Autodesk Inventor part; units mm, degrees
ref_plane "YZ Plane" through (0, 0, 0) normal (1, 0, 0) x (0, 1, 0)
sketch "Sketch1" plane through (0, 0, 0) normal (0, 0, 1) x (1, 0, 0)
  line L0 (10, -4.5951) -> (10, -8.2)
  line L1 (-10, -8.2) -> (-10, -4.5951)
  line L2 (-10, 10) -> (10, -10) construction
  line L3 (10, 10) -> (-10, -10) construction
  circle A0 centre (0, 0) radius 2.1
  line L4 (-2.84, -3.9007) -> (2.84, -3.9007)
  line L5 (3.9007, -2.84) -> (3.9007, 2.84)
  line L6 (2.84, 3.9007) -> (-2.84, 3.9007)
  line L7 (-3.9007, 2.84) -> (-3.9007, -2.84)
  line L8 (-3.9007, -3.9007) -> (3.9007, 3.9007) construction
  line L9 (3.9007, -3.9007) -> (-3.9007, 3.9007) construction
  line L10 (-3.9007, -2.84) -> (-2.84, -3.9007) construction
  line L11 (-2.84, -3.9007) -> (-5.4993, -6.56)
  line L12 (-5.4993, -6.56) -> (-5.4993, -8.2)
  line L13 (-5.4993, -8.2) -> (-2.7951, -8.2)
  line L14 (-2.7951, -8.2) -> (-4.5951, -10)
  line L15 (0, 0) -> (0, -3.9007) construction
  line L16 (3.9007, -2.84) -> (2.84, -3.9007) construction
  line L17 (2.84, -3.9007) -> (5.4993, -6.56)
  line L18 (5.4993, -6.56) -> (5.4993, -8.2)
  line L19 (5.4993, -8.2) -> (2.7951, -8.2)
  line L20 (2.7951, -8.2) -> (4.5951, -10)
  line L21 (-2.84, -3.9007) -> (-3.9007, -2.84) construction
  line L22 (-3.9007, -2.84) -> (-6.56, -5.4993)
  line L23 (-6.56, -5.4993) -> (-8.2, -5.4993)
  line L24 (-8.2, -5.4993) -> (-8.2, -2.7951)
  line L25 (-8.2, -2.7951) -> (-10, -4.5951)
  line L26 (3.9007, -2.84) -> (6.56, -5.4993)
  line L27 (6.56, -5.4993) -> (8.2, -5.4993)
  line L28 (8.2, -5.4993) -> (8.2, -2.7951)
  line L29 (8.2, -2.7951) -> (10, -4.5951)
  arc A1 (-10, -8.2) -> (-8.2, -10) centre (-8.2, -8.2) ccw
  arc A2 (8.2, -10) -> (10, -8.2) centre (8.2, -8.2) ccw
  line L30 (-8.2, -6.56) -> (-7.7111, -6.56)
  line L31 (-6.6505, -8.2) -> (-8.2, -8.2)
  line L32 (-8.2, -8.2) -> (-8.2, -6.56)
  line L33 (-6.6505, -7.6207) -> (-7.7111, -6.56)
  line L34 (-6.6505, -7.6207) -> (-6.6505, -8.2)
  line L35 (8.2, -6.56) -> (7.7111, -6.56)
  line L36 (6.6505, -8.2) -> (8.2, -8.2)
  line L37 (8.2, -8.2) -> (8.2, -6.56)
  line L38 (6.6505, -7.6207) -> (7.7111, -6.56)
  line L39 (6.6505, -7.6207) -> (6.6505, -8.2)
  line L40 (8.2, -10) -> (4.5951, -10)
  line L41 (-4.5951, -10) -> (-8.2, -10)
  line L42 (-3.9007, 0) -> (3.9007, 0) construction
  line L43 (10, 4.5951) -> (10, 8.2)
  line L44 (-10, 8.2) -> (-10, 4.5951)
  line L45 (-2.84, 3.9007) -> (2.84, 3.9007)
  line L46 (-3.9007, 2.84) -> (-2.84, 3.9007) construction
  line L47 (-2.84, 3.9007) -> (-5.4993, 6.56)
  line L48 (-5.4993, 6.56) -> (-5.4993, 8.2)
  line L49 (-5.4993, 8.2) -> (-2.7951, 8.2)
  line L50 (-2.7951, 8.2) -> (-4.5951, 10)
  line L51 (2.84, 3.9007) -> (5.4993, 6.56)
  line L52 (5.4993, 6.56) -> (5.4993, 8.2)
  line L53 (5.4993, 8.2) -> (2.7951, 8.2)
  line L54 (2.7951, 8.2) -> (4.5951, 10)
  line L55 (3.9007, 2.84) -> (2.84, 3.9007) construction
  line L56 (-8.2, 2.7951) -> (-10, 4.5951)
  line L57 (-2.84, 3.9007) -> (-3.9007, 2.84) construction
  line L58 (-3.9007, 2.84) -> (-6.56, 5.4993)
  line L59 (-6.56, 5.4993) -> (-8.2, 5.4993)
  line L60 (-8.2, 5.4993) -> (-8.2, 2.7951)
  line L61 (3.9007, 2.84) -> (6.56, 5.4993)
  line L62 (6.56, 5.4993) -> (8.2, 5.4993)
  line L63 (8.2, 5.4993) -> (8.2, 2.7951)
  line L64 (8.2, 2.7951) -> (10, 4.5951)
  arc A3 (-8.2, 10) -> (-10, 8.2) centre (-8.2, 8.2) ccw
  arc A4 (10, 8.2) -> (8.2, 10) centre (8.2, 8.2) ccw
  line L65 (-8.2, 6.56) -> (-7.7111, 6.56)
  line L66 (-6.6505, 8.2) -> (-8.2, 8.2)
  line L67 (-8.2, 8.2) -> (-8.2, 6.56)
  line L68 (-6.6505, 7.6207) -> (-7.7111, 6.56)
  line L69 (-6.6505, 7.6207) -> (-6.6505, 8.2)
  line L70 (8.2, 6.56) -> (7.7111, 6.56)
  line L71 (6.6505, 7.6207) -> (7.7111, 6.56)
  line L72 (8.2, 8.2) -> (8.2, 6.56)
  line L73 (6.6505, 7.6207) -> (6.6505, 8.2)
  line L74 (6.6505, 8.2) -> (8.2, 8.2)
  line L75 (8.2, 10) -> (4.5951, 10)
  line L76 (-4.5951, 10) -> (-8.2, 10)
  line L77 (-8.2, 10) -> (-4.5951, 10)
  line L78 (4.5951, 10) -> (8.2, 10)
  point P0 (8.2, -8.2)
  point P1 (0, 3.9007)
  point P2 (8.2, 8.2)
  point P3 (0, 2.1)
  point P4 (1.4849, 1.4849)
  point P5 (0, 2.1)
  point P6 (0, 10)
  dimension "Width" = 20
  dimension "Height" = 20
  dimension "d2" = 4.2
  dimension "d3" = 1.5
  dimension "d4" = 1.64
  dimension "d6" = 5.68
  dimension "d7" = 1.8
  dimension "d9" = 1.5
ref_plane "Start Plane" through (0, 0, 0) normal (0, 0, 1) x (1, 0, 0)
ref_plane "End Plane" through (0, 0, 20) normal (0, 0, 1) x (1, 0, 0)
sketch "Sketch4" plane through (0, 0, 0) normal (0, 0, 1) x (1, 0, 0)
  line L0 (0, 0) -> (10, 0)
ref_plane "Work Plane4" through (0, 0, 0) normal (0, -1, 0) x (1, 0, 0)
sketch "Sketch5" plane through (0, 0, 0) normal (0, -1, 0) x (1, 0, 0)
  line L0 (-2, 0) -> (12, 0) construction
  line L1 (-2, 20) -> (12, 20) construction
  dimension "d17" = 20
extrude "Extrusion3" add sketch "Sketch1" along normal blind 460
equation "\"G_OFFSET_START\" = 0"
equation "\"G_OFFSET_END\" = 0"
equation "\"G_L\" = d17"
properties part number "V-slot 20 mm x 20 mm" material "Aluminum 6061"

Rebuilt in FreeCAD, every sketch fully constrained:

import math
import FreeCAD as App
import Part
import Sketcher
from FreeCAD import Vector


def add_polygon(sketch, points):
    """Adds a closed chain of lines whose ends are joined by coincident constraints."""
    first, n = sketch.GeometryCount, len(points)
    for a, b in zip(points, points[1:] + points[:1]):
        sketch.addGeometry(Part.LineSegment(App.Vector(*a, 0), App.Vector(*b, 0)), False)
    for i in range(n):
        sketch.addConstraint(Sketcher.Constraint("Coincident", first + i, 2, first + (i + 1) % n, 1))

doc = App.newDocument("Part")
body = doc.addObject("PartDesign::Body", "Body")

# Sketch on XY plane
sketch1 = body.newObject("Sketcher::SketchObject", "Sketch")
sketch1.AttachmentSupport = (doc.getObject("XY_Plane"), [""])
sketch1.MapMode = "FlatFace"
sketch1.addGeometry(Part.LineSegment(Vector(10, -8.2, 0), Vector(10, -4.5951, 0)), False)  # 0
sketch1.addGeometry(Part.LineSegment(Vector(10, -4.5951, 0), Vector(8.2, -2.7951, 0)), False)  # 1
sketch1.addGeometry(Part.LineSegment(Vector(8.2, -2.7951, 0), Vector(8.2, -5.4993, 0)), False)  # 2
sketch1.addGeometry(Part.LineSegment(Vector(8.2, -5.4993, 0), Vector(6.56, -5.4993, 0)), False)  # 3
sketch1.addGeometry(Part.LineSegment(Vector(6.56, -5.4993, 0), Vector(3.9007, -2.84, 0)), False)  # 4
sketch1.addGeometry(Part.LineSegment(Vector(3.9007, -2.84, 0), Vector(3.9007, 2.84, 0)), False)  # 5
sketch1.addGeometry(Part.LineSegment(Vector(3.9007, 2.84, 0), Vector(6.56, 5.4993, 0)), False)  # 6
sketch1.addGeometry(Part.LineSegment(Vector(6.56, 5.4993, 0), Vector(8.2, 5.4993, 0)), False)  # 7
sketch1.addGeometry(Part.LineSegment(Vector(8.2, 5.4993, 0), Vector(8.2, 2.7951, 0)), False)  # 8
sketch1.addGeometry(Part.LineSegment(Vector(8.2, 2.7951, 0), Vector(10, 4.5951, 0)), False)  # 9
sketch1.addGeometry(Part.LineSegment(Vector(10, 4.5951, 0), Vector(10, 8.2, 0)), False)  # 10
sketch1.addGeometry(Part.ArcOfCircle(Part.Circle(Vector(8.2, 8.2, 0), Vector(0, 0, 1), 1.8), math.radians(0), math.radians(90)), False)  # 11
sketch1.addGeometry(Part.LineSegment(Vector(8.2, 10, 0), Vector(4.5951, 10, 0)), False)  # 12
sketch1.addGeometry(Part.LineSegment(Vector(4.5951, 10, 0), Vector(2.7951, 8.2, 0)), False)  # 13
sketch1.addGeometry(Part.LineSegment(Vector(2.7951, 8.2, 0), Vector(5.4993, 8.2, 0)), False)  # 14
sketch1.addGeometry(Part.LineSegment(Vector(5.4993, 8.2, 0), Vector(5.4993, 6.56, 0)), False)  # 15
sketch1.addGeometry(Part.LineSegment(Vector(5.4993, 6.56, 0), Vector(2.84, 3.9007, 0)), False)  # 16
sketch1.addGeometry(Part.LineSegment(Vector(2.84, 3.9007, 0), Vector(-2.84, 3.9007, 0)), False)  # 17
sketch1.addGeometry(Part.LineSegment(Vector(-2.84, 3.9007, 0), Vector(-5.4993, 6.56, 0)), False)  # 18
sketch1.addGeometry(Part.LineSegment(Vector(-5.4993, 6.56, 0), Vector(-5.4993, 8.2, 0)), False)  # 19
sketch1.addGeometry(Part.LineSegment(Vector(-5.4993, 8.2, 0), Vector(-2.7951, 8.2, 0)), False)  # 20
sketch1.addGeometry(Part.LineSegment(Vector(-2.7951, 8.2, 0), Vector(-4.5951, 10, 0)), False)  # 21
sketch1.addGeometry(Part.LineSegment(Vector(-4.5951, 10, 0), Vector(-8.2, 10, 0)), False)  # 22
sketch1.addGeometry(Part.ArcOfCircle(Part.Circle(Vector(-8.2, 8.2, 0), Vector(0, 0, 1), 1.8), math.radians(90), math.radians(180)), False)  # 23
sketch1.addGeometry(Part.LineSegment(Vector(-10, 8.2, 0), Vector(-10, 4.5951, 0)), False)  # 24
sketch1.addGeometry(Part.LineSegment(Vector(-10, 4.5951, 0), Vector(-8.2, 2.7951, 0)), False)  # 25
sketch1.addGeometry(Part.LineSegment(Vector(-8.2, 2.7951, 0), Vector(-8.2, 5.4993, 0)), False)  # 26
sketch1.addGeometry(Part.LineSegment(Vector(-8.2, 5.4993, 0), Vector(-6.56, 5.4993, 0)), False)  # 27
sketch1.addGeometry(Part.LineSegment(Vector(-6.56, 5.4993, 0), Vector(-3.9007, 2.84, 0)), False)  # 28
sketch1.addGeometry(Part.LineSegment(Vector(-3.9007, 2.84, 0), Vector(-3.9007, -2.84, 0)), False)  # 29
sketch1.addGeometry(Part.LineSegment(Vector(-3.9007, -2.84, 0), Vector(-6.56, -5.4993, 0)), False)  # 30
sketch1.addGeometry(Part.LineSegment(Vector(-6.56, -5.4993, 0), Vector(-8.2, -5.4993, 0)), False)  # 31
sketch1.addGeometry(Part.LineSegment(Vector(-8.2, -5.4993, 0), Vector(-8.2, -2.7951, 0)), False)  # 32
sketch1.addGeometry(Part.LineSegment(Vector(-8.2, -2.7951, 0), Vector(-10, -4.5951, 0)), False)  # 33
sketch1.addGeometry(Part.LineSegment(Vector(-10, -4.5951, 0), Vector(-10, -8.2, 0)), False)  # 34
sketch1.addGeometry(Part.ArcOfCircle(Part.Circle(Vector(-8.2, -8.2, 0), Vector(0, 0, 1), 1.8), math.radians(180), math.radians(270)), False)  # 35
sketch1.addGeometry(Part.LineSegment(Vector(-8.2, -10, 0), Vector(-4.5951, -10, 0)), False)  # 36
sketch1.addGeometry(Part.LineSegment(Vector(-4.5951, -10, 0), Vector(-2.7951, -8.2, 0)), False)  # 37
sketch1.addGeometry(Part.LineSegment(Vector(-2.7951, -8.2, 0), Vector(-5.4993, -8.2, 0)), False)  # 38
sketch1.addGeometry(Part.LineSegment(Vector(-5.4993, -8.2, 0), Vector(-5.4993, -6.56, 0)), False)  # 39
sketch1.addGeometry(Part.LineSegment(Vector(-5.4993, -6.56, 0), Vector(-2.84, -3.9007, 0)), False)  # 40
sketch1.addGeometry(Part.LineSegment(Vector(-2.84, -3.9007, 0), Vector(2.84, -3.9007, 0)), False)  # 41
sketch1.addGeometry(Part.LineSegment(Vector(2.84, -3.9007, 0), Vector(5.4993, -6.56, 0)), False)  # 42
sketch1.addGeometry(Part.LineSegment(Vector(5.4993, -6.56, 0), Vector(5.4993, -8.2, 0)), False)  # 43
sketch1.addGeometry(Part.LineSegment(Vector(5.4993, -8.2, 0), Vector(2.7951, -8.2, 0)), False)  # 44
sketch1.addGeometry(Part.LineSegment(Vector(2.7951, -8.2, 0), Vector(4.5951, -10, 0)), False)  # 45
sketch1.addGeometry(Part.LineSegment(Vector(4.5951, -10, 0), Vector(8.2, -10, 0)), False)  # 46
sketch1.addGeometry(Part.ArcOfCircle(Part.Circle(Vector(8.2, -8.2, 0), Vector(0, 0, 1), 1.8), math.radians(-90), math.radians(0)), False)  # 47
add_polygon(sketch1, [(-8.2, -8.2), (-8.2, -6.56), (-7.7111, -6.56), (-6.6505, -7.6207), (-6.6505, -8.2)])  # lines 48-52
add_polygon(sketch1, [(7.7111, -6.56), (8.2, -6.56), (8.2, -8.2), (6.6505, -8.2), (6.6505, -7.6207)])  # lines 53-57
add_polygon(sketch1, [(-7.7111, 6.56), (-8.2, 6.56), (-8.2, 8.2), (-6.6505, 8.2), (-6.6505, 7.6207)])  # lines 58-62
sketch1.addGeometry(Part.Circle(Vector(0, 0, 0), Vector(0, 0, 1), 2.1), False)  # 63
add_polygon(sketch1, [(8.2, 8.2), (8.2, 6.56), (7.7111, 6.56), (6.6505, 7.6207), (6.6505, 8.2)])  # lines 64-68
sketch1.addConstraint(Sketcher.Constraint("Coincident", 0, 2, 1, 1))
sketch1.addConstraint(Sketcher.Constraint("Coincident", 1, 2, 2, 1))
sketch1.addConstraint(Sketcher.Constraint("Coincident", 2, 2, 3, 1))
sketch1.addConstraint(Sketcher.Constraint("Coincident", 3, 2, 4, 1))
sketch1.addConstraint(Sketcher.Constraint("Coincident", 4, 2, 5, 1))
sketch1.addConstraint(Sketcher.Constraint("Coincident", 5, 2, 6, 1))
sketch1.addConstraint(Sketcher.Constraint("Coincident", 6, 2, 7, 1))
sketch1.addConstraint(Sketcher.Constraint("Coincident", 7, 2, 8, 1))
sketch1.addConstraint(Sketcher.Constraint("Coincident", 8, 2, 9, 1))
sketch1.addConstraint(Sketcher.Constraint("Coincident", 9, 2, 10, 1))
sketch1.addConstraint(Sketcher.Constraint("Tangent", 10, 2, 11, 1))
sketch1.addConstraint(Sketcher.Constraint("Tangent", 11, 2, 12, 1))
sketch1.addConstraint(Sketcher.Constraint("Coincident", 12, 2, 13, 1))
sketch1.addConstraint(Sketcher.Constraint("Coincident", 13, 2, 14, 1))
sketch1.addConstraint(Sketcher.Constraint("Coincident", 14, 2, 15, 1))
sketch1.addConstraint(Sketcher.Constraint("Coincident", 15, 2, 16, 1))
sketch1.addConstraint(Sketcher.Constraint("Coincident", 16, 2, 17, 1))
sketch1.addConstraint(Sketcher.Constraint("Coincident", 17, 2, 18, 1))
sketch1.addConstraint(Sketcher.Constraint("Coincident", 18, 2, 19, 1))
sketch1.addConstraint(Sketcher.Constraint("Coincident", 19, 2, 20, 1))
sketch1.addConstraint(Sketcher.Constraint("Coincident", 20, 2, 21, 1))
sketch1.addConstraint(Sketcher.Constraint("Coincident", 21, 2, 22, 1))
sketch1.addConstraint(Sketcher.Constraint("Tangent", 22, 2, 23, 1))
sketch1.addConstraint(Sketcher.Constraint("Tangent", 23, 2, 24, 1))
sketch1.addConstraint(Sketcher.Constraint("Coincident", 24, 2, 25, 1))
sketch1.addConstraint(Sketcher.Constraint("Coincident", 25, 2, 26, 1))
sketch1.addConstraint(Sketcher.Constraint("Coincident", 26, 2, 27, 1))
sketch1.addConstraint(Sketcher.Constraint("Coincident", 27, 2, 28, 1))
sketch1.addConstraint(Sketcher.Constraint("Coincident", 28, 2, 29, 1))
sketch1.addConstraint(Sketcher.Constraint("Coincident", 29, 2, 30, 1))
sketch1.addConstraint(Sketcher.Constraint("Coincident", 30, 2, 31, 1))
sketch1.addConstraint(Sketcher.Constraint("Coincident", 31, 2, 32, 1))
sketch1.addConstraint(Sketcher.Constraint("Coincident", 32, 2, 33, 1))
sketch1.addConstraint(Sketcher.Constraint("Coincident", 33, 2, 34, 1))
sketch1.addConstraint(Sketcher.Constraint("Tangent", 34, 2, 35, 1))
sketch1.addConstraint(Sketcher.Constraint("Tangent", 35, 2, 36, 1))
sketch1.addConstraint(Sketcher.Constraint("Coincident", 36, 2, 37, 1))
sketch1.addConstraint(Sketcher.Constraint("Coincident", 37, 2, 38, 1))
sketch1.addConstraint(Sketcher.Constraint("Coincident", 38, 2, 39, 1))
sketch1.addConstraint(Sketcher.Constraint("Coincident", 39, 2, 40, 1))
sketch1.addConstraint(Sketcher.Constraint("Coincident", 40, 2, 41, 1))
sketch1.addConstraint(Sketcher.Constraint("Coincident", 41, 2, 42, 1))
sketch1.addConstraint(Sketcher.Constraint("Coincident", 42, 2, 43, 1))
sketch1.addConstraint(Sketcher.Constraint("Coincident", 43, 2, 44, 1))
sketch1.addConstraint(Sketcher.Constraint("Coincident", 44, 2, 45, 1))
sketch1.addConstraint(Sketcher.Constraint("Coincident", 45, 2, 46, 1))
sketch1.addConstraint(Sketcher.Constraint("Tangent", 46, 2, 47, 1))
sketch1.addConstraint(Sketcher.Constraint("Tangent", 47, 2, 0, 1))
sketch1.addConstraint(Sketcher.Constraint("Vertical", 0))
sketch1.addConstraint(Sketcher.Constraint("Vertical", 2))
sketch1.addConstraint(Sketcher.Constraint("Horizontal", 3))
sketch1.addConstraint(Sketcher.Constraint("Vertical", 5))
sketch1.addConstraint(Sketcher.Constraint("Horizontal", 7))
sketch1.addConstraint(Sketcher.Constraint("Vertical", 8))
sketch1.addConstraint(Sketcher.Constraint("Vertical", 10))
sketch1.addConstraint(Sketcher.Constraint("Horizontal", 12))
sketch1.addConstraint(Sketcher.Constraint("Horizontal", 14))
sketch1.addConstraint(Sketcher.Constraint("Vertical", 15))
sketch1.addConstraint(Sketcher.Constraint("Horizontal", 17))
sketch1.addConstraint(Sketcher.Constraint("Vertical", 19))
sketch1.addConstraint(Sketcher.Constraint("Horizontal", 20))
sketch1.addConstraint(Sketcher.Constraint("Horizontal", 22))
sketch1.addConstraint(Sketcher.Constraint("Vertical", 24))
sketch1.addConstraint(Sketcher.Constraint("Vertical", 26))
sketch1.addConstraint(Sketcher.Constraint("Horizontal", 27))
sketch1.addConstraint(Sketcher.Constraint("Vertical", 29))
sketch1.addConstraint(Sketcher.Constraint("Horizontal", 31))
sketch1.addConstraint(Sketcher.Constraint("Vertical", 32))
sketch1.addConstraint(Sketcher.Constraint("Vertical", 34))
sketch1.addConstraint(Sketcher.Constraint("Horizontal", 36))
sketch1.addConstraint(Sketcher.Constraint("Horizontal", 38))
sketch1.addConstraint(Sketcher.Constraint("Vertical", 39))
sketch1.addConstraint(Sketcher.Constraint("Horizontal", 41))
sketch1.addConstraint(Sketcher.Constraint("Vertical", 43))
sketch1.addConstraint(Sketcher.Constraint("Horizontal", 44))
sketch1.addConstraint(Sketcher.Constraint("Horizontal", 46))
sketch1.addConstraint(Sketcher.Constraint("Vertical", 48))
sketch1.addConstraint(Sketcher.Constraint("Horizontal", 49))
sketch1.addConstraint(Sketcher.Constraint("Vertical", 51))
sketch1.addConstraint(Sketcher.Constraint("Horizontal", 52))
sketch1.addConstraint(Sketcher.Constraint("Horizontal", 53))
sketch1.addConstraint(Sketcher.Constraint("Vertical", 54))
sketch1.addConstraint(Sketcher.Constraint("Horizontal", 55))
sketch1.addConstraint(Sketcher.Constraint("Vertical", 56))
sketch1.addConstraint(Sketcher.Constraint("Horizontal", 58))
sketch1.addConstraint(Sketcher.Constraint("Vertical", 59))
sketch1.addConstraint(Sketcher.Constraint("Horizontal", 60))
sketch1.addConstraint(Sketcher.Constraint("Vertical", 61))
sketch1.addConstraint(Sketcher.Constraint("Vertical", 64))
sketch1.addConstraint(Sketcher.Constraint("Horizontal", 65))
sketch1.addConstraint(Sketcher.Constraint("Vertical", 67))
sketch1.addConstraint(Sketcher.Constraint("Horizontal", 68))
sketch1.addConstraint(Sketcher.Constraint("Coincident", 63, 3, -1, 1))
sketch1.addConstraint(Sketcher.Constraint("Coincident", 52, 2, 35, 3))
sketch1.addConstraint(Sketcher.Constraint("Coincident", 54, 2, 47, 3))
sketch1.addConstraint(Sketcher.Constraint("Coincident", 59, 2, 23, 3))
sketch1.addConstraint(Sketcher.Constraint("Coincident", 68, 2, 11, 3))
sketch1.addConstraint(Sketcher.Constraint("Equal", 11, 23))
sketch1.addConstraint(Sketcher.Constraint("Equal", 23, 35))
sketch1.addConstraint(Sketcher.Constraint("Equal", 35, 47))
sketch1.addConstraint(Sketcher.Constraint("Symmetric", 11, 3, 35, 3, -1, 1))
sketch1.addConstraint(Sketcher.Constraint("Symmetric", 23, 3, 47, 3, -1, 1))
sketch1.addConstraint(Sketcher.Constraint("Symmetric", 1, 2, 25, 2, -1, 1))
sketch1.addConstraint(Sketcher.Constraint("Symmetric", 3, 2, 27, 2, -1, 1))
sketch1.addConstraint(Sketcher.Constraint("Symmetric", 4, 2, 28, 2, -1, 1))
sketch1.addConstraint(Sketcher.Constraint("Symmetric", 6, 2, 30, 2, -1, 1))
sketch1.addConstraint(Sketcher.Constraint("Symmetric", 8, 2, 32, 2, -1, 1))
sketch1.addConstraint(Sketcher.Constraint("Symmetric", 13, 2, 37, 2, -1, 1))
sketch1.addConstraint(Sketcher.Constraint("Symmetric", 15, 2, 39, 2, -1, 1))
sketch1.addConstraint(Sketcher.Constraint("Symmetric", 16, 2, 40, 2, -1, 1))
sketch1.addConstraint(Sketcher.Constraint("Symmetric", 18, 2, 42, 2, -1, 1))
sketch1.addConstraint(Sketcher.Constraint("Symmetric", 20, 2, 44, 2, -1, 1))
sketch1.addConstraint(Sketcher.Constraint("Symmetric", 56, 2, 61, 2, -1, 1))
sketch1.addConstraint(Sketcher.Constraint("Symmetric", 57, 2, 62, 2, -1, 1))
sketch1.addConstraint(Sketcher.Constraint("Symmetric", 49, 2, 65, 2, -1, 1))
sketch1.addConstraint(Sketcher.Constraint("Symmetric", 50, 2, 66, 2, -1, 1))
sketch1.addConstraint(Sketcher.Constraint("Symmetric", 11, 3, 23, 3, -2))
sketch1.addConstraint(Sketcher.Constraint("Symmetric", 15, 2, 18, 2, -2))
sketch1.addConstraint(Sketcher.Constraint("Symmetric", 13, 2, 20, 2, -2))
sketch1.addConstraint(Sketcher.Constraint("Symmetric", 8, 2, 25, 2, -2))
sketch1.addConstraint(Sketcher.Constraint("Symmetric", 6, 2, 27, 2, -2))
sketch1.addConstraint(Sketcher.Constraint("Symmetric", 50, 2, 56, 2, -2))
sketch1.addConstraint(Sketcher.Constraint("Symmetric", 49, 2, 57, 2, -2))
sketch1.addConstraint(Sketcher.Constraint("Parallel", 1, 4))
sketch1.addConstraint(Sketcher.Constraint("Perpendicular", 4, 6))
sketch1.addConstraint(Sketcher.Constraint("Parallel", 6, 9))
sketch1.addConstraint(Sketcher.Constraint("Parallel", 9, 13))
sketch1.addConstraint(Sketcher.Constraint("Parallel", 13, 16))
sketch1.addConstraint(Sketcher.Constraint("Perpendicular", 16, 18))
sketch1.addConstraint(Sketcher.Constraint("Parallel", 18, 21))
sketch1.addConstraint(Sketcher.Constraint("Parallel", 21, 25))
sketch1.addConstraint(Sketcher.Constraint("Perpendicular", 28, 30))
sketch1.addConstraint(Sketcher.Constraint("Parallel", 30, 33))
sketch1.addConstraint(Sketcher.Constraint("Parallel", 33, 37))
sketch1.addConstraint(Sketcher.Constraint("Perpendicular", 40, 42))
sketch1.addConstraint(Sketcher.Constraint("Parallel", 42, 45))
sketch1.addConstraint(Sketcher.Constraint("Parallel", 45, 50))
sketch1.addConstraint(Sketcher.Constraint("Perpendicular", 50, 57))
sketch1.addConstraint(Sketcher.Constraint("Horizontal", 10, 2, 13, 2))
sketch1.addConstraint(Sketcher.Constraint("Horizontal", 42, 2, 48, 2))
sketch1.addConstraint(Sketcher.Constraint("Vertical", 47, 3, 1, 2))
sketch1.addConstraint(Sketcher.Constraint("Equal", 46, 0))
sketch1.addConstraint(Sketcher.Constraint("Equal", 44, 2))
sketch1.addConstraint(Sketcher.Constraint("Equal", 41, 5))
sketch1.addConstraint(Sketcher.Constraint("Equal", 31, 15))
sketch1.addConstraint(Sketcher.Constraint("Equal", 6, 16))
sketch1.addConstraint(Sketcher.Constraint("Diameter", 63, 4.2))
sketch1.addConstraint(Sketcher.Constraint("Radius", 11, 1.8))
sketch1.addConstraint(Sketcher.Constraint("Distance", 50, 1.5))
sketch1.addConstraint(Sketcher.Constraint("DistanceX", 3, 2, 3, 1, 1.64))
sketch1.addConstraint(Sketcher.Constraint("DistanceX", 17, 2, 17, 1, 5.68))
sketch1.addConstraint(Sketcher.Constraint("DistanceX", -1, 1, 0, 2, 10.0))
sketch1.addConstraint(Sketcher.Constraint("DistanceX", 12, 2, 12, 1, 3.605))
sketch1.addConstraint(Sketcher.Constraint("DistanceX", 49, 1, 49, 2, 0.489))
sketch1.addConstraint(Sketcher.Constraint("DistanceX", 14, 1, 14, 2, 2.7042))
pad1 = body.newObject("PartDesign::Pad", "Pad")
pad1.Profile = sketch1
pad1.Length = 460

doc.recompute()
